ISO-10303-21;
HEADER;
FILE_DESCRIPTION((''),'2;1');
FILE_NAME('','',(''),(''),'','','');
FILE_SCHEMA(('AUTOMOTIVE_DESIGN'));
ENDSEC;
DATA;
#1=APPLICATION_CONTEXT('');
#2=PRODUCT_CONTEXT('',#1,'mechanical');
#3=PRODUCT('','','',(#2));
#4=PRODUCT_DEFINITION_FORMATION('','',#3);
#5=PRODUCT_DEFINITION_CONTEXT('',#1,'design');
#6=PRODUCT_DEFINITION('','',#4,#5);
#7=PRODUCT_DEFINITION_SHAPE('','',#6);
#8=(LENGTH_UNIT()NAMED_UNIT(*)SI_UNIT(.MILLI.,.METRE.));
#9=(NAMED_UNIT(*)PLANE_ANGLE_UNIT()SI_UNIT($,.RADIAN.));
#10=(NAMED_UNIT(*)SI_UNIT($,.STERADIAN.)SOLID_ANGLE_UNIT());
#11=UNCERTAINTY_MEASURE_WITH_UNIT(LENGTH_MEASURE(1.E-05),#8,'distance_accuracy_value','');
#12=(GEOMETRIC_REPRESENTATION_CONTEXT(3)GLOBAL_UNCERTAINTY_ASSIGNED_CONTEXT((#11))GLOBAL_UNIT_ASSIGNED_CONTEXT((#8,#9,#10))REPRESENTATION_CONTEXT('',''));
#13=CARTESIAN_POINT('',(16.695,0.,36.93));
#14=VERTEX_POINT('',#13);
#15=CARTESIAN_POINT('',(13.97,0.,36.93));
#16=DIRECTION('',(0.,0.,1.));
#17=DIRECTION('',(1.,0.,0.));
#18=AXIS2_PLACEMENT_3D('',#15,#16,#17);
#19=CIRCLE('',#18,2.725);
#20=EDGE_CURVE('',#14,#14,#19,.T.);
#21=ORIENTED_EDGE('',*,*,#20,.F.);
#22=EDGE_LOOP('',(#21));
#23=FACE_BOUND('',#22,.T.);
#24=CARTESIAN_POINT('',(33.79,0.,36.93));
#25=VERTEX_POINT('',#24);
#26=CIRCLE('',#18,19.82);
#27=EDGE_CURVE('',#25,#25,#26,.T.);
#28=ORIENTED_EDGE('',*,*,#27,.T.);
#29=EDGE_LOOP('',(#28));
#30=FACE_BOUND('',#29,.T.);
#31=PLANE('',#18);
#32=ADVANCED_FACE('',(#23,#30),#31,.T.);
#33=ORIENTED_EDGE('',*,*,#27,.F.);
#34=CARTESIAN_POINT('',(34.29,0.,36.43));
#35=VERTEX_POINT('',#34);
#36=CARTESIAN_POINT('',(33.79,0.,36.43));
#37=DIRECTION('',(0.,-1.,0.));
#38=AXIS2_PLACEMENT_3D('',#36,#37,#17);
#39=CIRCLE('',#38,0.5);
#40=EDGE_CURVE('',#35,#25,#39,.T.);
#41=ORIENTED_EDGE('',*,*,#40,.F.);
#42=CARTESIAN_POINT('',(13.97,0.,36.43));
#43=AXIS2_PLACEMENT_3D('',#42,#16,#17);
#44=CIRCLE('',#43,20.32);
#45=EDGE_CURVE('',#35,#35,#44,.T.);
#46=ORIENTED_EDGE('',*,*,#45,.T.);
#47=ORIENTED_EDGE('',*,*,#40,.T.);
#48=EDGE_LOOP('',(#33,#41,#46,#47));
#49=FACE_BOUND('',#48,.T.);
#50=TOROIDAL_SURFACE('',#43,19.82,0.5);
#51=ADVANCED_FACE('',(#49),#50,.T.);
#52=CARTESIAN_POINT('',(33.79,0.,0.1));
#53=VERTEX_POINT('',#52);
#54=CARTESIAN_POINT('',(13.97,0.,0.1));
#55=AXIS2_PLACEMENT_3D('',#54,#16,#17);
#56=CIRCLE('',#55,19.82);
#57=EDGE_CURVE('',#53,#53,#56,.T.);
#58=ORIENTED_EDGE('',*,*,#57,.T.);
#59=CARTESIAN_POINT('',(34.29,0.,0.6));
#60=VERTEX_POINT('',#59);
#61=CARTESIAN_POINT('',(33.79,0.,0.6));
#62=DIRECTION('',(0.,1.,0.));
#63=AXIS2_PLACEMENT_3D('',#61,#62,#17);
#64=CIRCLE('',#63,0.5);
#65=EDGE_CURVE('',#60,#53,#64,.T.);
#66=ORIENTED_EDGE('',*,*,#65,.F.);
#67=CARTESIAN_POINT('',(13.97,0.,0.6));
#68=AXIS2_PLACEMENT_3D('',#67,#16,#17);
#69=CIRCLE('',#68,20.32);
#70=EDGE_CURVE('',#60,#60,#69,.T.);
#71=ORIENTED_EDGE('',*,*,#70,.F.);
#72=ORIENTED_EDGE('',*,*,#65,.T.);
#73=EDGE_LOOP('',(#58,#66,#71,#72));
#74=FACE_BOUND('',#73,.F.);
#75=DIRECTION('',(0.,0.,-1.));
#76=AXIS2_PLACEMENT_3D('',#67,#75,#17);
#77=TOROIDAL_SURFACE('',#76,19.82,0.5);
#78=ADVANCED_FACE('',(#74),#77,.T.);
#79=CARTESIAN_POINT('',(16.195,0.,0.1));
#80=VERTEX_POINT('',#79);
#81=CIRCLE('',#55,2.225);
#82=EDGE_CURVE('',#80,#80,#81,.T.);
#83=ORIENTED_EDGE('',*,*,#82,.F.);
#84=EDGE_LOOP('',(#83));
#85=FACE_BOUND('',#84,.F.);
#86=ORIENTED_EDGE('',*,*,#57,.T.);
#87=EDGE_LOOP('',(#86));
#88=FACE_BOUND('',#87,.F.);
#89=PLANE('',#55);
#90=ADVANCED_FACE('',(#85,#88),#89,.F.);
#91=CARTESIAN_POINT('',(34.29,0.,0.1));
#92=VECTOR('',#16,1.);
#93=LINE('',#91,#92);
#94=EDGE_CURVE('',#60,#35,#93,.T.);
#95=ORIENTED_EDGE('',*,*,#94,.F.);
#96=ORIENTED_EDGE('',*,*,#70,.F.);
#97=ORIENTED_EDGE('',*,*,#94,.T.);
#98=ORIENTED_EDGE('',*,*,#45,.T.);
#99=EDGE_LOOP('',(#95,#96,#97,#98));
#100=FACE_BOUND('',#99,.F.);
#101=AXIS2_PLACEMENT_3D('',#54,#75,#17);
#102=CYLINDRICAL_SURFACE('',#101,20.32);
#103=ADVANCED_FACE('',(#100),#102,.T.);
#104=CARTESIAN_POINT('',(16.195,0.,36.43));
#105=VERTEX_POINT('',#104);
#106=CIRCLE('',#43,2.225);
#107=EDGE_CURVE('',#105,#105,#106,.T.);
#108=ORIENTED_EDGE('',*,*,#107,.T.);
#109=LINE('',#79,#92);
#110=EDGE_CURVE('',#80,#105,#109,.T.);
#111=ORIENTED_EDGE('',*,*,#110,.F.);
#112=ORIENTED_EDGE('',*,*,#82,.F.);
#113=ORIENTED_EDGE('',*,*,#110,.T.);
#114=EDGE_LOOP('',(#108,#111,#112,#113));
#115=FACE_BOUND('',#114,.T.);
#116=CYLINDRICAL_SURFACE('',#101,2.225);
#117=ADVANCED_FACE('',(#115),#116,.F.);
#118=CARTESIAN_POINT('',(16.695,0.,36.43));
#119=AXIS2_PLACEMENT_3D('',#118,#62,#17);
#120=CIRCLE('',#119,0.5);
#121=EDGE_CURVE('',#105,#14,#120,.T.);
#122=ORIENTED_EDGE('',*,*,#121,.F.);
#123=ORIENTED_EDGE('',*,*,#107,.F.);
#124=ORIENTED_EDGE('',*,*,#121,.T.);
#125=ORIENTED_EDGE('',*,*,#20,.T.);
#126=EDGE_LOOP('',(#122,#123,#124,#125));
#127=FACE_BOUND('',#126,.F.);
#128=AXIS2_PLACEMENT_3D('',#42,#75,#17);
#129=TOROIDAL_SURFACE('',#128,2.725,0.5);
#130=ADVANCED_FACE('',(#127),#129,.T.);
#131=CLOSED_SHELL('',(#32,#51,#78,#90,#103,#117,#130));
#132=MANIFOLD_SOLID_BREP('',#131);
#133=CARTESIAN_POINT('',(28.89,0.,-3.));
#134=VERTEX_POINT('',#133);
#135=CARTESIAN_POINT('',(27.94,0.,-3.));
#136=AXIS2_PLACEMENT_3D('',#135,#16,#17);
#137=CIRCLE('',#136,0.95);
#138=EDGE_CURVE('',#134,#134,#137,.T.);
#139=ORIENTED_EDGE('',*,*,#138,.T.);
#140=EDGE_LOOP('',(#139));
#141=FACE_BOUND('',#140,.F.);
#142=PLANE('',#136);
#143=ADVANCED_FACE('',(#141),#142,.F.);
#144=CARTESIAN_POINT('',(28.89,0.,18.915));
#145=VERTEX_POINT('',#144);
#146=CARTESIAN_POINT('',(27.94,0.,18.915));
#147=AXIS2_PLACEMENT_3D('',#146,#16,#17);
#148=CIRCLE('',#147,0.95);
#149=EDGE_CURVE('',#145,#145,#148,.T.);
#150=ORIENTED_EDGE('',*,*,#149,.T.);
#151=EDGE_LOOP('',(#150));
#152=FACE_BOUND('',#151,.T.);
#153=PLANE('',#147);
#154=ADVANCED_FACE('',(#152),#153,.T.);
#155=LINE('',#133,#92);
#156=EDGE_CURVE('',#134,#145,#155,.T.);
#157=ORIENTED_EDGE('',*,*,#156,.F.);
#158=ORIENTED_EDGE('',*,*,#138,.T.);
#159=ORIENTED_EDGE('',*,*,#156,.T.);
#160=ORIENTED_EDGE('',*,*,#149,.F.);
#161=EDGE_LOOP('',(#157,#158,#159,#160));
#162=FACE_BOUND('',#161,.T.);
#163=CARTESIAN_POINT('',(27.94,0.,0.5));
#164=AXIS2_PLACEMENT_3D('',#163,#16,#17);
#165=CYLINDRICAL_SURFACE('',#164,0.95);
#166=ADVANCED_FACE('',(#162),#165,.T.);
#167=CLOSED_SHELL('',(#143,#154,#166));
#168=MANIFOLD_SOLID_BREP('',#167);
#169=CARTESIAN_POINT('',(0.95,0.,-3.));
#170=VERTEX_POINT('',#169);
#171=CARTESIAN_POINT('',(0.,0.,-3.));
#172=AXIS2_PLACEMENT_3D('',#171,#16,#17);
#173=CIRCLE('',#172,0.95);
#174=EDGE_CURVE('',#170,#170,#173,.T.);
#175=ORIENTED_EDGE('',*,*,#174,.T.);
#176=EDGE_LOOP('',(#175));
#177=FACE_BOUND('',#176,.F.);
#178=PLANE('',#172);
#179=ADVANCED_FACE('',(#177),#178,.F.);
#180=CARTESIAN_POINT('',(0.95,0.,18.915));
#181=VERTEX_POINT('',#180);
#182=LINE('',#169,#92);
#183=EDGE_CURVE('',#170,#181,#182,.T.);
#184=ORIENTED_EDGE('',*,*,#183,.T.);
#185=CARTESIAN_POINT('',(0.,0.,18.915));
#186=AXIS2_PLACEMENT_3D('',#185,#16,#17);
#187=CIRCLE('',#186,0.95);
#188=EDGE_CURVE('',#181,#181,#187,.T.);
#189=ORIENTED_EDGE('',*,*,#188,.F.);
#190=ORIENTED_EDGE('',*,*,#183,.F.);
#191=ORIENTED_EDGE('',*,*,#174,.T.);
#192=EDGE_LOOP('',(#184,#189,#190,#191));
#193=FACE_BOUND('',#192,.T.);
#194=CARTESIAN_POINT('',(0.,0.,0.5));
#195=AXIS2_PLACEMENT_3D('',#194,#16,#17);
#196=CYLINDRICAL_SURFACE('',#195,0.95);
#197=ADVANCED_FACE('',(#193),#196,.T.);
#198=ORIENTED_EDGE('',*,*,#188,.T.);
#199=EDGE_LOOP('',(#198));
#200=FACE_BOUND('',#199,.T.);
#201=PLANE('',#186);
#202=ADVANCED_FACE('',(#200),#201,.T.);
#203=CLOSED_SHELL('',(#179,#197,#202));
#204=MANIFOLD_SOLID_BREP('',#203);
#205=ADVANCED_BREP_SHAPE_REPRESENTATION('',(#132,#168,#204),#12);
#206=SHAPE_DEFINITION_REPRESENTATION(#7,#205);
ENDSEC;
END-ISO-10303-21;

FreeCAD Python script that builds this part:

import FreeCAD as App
import Part
import Sketcher
from FreeCAD import Vector
Q = App.Units.Quantity


def edges_at(feature, points):
    """Names of the edges that pass closest to the given points."""
    edges = feature.Shape.Edges
    near = lambda p: min(range(len(edges)), key=lambda i: edges[i].distToShape(Part.Vertex(*p))[0])
    return sorted({f"Edge{near(p) + 1}" for p in points})

doc = App.newDocument("Part")
body = doc.addObject("PartDesign::Body", "Body")
body.AllowCompound = True

sketch1 = body.newObject("Sketcher::SketchObject", "Sketch")
sketch1.AttachmentSupport = (doc.getObject("XY_Plane"), [""])
sketch1.MapMode = "FlatFace"
sketch1.AttachmentOffset = App.Placement(Vector(0, 0, 0.5), App.Rotation())
sketch1.addGeometry([
    Part.Circle(Vector(0, 0, 0), Vector(0, 0, 1), 0.95),
    Part.Circle(Vector(27.94, 0, 0), Vector(0, 0, 1), 0.95),
], False)
sketch1.addConstraint([
    Sketcher.Constraint("Coincident", 0, 3, -1, 1),
    Sketcher.Constraint("Equal", 0, 1),
    Sketcher.Constraint("PointOnObject", 1, 3, -1),
    Sketcher.Constraint("DistanceX", -1, 1, 1, 3, Q("1.1 in")),
    Sketcher.Constraint("Diameter", 0, Q("1.9 mm")),
])
pad1 = body.newObject("PartDesign::Pad", "Pad")
pad1.Profile = sketch1
pad1.Type = "TwoLengths"
pad1.Length = Q("0.725 in")
pad1.Length2 = 3.5
body2 = doc.addObject("PartDesign::Body", "Body001")

sketch2 = body2.newObject("Sketcher::SketchObject", "Sketch001")
sketch2.AttachmentSupport = (doc.getObject("XY_Plane001"), [""])
sketch2.MapMode = "FlatFace"
sketch2.AttachmentOffset = App.Placement(Vector(0, 0, 0.1), App.Rotation())
sketch2.addGeometry([
    Part.Circle(Vector(13.97, 0, 0), Vector(0, 0, 1), 20.32),
    Part.Circle(Vector(13.97, 0, 0), Vector(0, 0, 1), 2.225),
], False)
sketch2.addConstraint([
    Sketcher.Constraint("Coincident", 1, 3, 0, 3),
    Sketcher.Constraint("PointOnObject", 0, 3, -1),
    Sketcher.Constraint("Diameter", 0, Q("1.6 in")),
    Sketcher.Constraint("Diameter", 1, Q("4.45 mm")),
    Sketcher.Constraint("DistanceX", -1, 1, 0, 3, Q("0.55 in")),
])
pad2 = body2.newObject("PartDesign::Pad", "Pad001")
pad2.Profile = sketch2
pad2.Length = Q("1.45 in")
doc.recompute()

fillet = body2.newObject("PartDesign::Fillet", "Fillet")
fillet.Base = (pad2, edges_at(pad2, [(11.745, 0, 36.93), (-6.35, 0, 36.93), (-6.35, 0, 0.1)]))
fillet.Radius = 0.5

doc.recompute()
